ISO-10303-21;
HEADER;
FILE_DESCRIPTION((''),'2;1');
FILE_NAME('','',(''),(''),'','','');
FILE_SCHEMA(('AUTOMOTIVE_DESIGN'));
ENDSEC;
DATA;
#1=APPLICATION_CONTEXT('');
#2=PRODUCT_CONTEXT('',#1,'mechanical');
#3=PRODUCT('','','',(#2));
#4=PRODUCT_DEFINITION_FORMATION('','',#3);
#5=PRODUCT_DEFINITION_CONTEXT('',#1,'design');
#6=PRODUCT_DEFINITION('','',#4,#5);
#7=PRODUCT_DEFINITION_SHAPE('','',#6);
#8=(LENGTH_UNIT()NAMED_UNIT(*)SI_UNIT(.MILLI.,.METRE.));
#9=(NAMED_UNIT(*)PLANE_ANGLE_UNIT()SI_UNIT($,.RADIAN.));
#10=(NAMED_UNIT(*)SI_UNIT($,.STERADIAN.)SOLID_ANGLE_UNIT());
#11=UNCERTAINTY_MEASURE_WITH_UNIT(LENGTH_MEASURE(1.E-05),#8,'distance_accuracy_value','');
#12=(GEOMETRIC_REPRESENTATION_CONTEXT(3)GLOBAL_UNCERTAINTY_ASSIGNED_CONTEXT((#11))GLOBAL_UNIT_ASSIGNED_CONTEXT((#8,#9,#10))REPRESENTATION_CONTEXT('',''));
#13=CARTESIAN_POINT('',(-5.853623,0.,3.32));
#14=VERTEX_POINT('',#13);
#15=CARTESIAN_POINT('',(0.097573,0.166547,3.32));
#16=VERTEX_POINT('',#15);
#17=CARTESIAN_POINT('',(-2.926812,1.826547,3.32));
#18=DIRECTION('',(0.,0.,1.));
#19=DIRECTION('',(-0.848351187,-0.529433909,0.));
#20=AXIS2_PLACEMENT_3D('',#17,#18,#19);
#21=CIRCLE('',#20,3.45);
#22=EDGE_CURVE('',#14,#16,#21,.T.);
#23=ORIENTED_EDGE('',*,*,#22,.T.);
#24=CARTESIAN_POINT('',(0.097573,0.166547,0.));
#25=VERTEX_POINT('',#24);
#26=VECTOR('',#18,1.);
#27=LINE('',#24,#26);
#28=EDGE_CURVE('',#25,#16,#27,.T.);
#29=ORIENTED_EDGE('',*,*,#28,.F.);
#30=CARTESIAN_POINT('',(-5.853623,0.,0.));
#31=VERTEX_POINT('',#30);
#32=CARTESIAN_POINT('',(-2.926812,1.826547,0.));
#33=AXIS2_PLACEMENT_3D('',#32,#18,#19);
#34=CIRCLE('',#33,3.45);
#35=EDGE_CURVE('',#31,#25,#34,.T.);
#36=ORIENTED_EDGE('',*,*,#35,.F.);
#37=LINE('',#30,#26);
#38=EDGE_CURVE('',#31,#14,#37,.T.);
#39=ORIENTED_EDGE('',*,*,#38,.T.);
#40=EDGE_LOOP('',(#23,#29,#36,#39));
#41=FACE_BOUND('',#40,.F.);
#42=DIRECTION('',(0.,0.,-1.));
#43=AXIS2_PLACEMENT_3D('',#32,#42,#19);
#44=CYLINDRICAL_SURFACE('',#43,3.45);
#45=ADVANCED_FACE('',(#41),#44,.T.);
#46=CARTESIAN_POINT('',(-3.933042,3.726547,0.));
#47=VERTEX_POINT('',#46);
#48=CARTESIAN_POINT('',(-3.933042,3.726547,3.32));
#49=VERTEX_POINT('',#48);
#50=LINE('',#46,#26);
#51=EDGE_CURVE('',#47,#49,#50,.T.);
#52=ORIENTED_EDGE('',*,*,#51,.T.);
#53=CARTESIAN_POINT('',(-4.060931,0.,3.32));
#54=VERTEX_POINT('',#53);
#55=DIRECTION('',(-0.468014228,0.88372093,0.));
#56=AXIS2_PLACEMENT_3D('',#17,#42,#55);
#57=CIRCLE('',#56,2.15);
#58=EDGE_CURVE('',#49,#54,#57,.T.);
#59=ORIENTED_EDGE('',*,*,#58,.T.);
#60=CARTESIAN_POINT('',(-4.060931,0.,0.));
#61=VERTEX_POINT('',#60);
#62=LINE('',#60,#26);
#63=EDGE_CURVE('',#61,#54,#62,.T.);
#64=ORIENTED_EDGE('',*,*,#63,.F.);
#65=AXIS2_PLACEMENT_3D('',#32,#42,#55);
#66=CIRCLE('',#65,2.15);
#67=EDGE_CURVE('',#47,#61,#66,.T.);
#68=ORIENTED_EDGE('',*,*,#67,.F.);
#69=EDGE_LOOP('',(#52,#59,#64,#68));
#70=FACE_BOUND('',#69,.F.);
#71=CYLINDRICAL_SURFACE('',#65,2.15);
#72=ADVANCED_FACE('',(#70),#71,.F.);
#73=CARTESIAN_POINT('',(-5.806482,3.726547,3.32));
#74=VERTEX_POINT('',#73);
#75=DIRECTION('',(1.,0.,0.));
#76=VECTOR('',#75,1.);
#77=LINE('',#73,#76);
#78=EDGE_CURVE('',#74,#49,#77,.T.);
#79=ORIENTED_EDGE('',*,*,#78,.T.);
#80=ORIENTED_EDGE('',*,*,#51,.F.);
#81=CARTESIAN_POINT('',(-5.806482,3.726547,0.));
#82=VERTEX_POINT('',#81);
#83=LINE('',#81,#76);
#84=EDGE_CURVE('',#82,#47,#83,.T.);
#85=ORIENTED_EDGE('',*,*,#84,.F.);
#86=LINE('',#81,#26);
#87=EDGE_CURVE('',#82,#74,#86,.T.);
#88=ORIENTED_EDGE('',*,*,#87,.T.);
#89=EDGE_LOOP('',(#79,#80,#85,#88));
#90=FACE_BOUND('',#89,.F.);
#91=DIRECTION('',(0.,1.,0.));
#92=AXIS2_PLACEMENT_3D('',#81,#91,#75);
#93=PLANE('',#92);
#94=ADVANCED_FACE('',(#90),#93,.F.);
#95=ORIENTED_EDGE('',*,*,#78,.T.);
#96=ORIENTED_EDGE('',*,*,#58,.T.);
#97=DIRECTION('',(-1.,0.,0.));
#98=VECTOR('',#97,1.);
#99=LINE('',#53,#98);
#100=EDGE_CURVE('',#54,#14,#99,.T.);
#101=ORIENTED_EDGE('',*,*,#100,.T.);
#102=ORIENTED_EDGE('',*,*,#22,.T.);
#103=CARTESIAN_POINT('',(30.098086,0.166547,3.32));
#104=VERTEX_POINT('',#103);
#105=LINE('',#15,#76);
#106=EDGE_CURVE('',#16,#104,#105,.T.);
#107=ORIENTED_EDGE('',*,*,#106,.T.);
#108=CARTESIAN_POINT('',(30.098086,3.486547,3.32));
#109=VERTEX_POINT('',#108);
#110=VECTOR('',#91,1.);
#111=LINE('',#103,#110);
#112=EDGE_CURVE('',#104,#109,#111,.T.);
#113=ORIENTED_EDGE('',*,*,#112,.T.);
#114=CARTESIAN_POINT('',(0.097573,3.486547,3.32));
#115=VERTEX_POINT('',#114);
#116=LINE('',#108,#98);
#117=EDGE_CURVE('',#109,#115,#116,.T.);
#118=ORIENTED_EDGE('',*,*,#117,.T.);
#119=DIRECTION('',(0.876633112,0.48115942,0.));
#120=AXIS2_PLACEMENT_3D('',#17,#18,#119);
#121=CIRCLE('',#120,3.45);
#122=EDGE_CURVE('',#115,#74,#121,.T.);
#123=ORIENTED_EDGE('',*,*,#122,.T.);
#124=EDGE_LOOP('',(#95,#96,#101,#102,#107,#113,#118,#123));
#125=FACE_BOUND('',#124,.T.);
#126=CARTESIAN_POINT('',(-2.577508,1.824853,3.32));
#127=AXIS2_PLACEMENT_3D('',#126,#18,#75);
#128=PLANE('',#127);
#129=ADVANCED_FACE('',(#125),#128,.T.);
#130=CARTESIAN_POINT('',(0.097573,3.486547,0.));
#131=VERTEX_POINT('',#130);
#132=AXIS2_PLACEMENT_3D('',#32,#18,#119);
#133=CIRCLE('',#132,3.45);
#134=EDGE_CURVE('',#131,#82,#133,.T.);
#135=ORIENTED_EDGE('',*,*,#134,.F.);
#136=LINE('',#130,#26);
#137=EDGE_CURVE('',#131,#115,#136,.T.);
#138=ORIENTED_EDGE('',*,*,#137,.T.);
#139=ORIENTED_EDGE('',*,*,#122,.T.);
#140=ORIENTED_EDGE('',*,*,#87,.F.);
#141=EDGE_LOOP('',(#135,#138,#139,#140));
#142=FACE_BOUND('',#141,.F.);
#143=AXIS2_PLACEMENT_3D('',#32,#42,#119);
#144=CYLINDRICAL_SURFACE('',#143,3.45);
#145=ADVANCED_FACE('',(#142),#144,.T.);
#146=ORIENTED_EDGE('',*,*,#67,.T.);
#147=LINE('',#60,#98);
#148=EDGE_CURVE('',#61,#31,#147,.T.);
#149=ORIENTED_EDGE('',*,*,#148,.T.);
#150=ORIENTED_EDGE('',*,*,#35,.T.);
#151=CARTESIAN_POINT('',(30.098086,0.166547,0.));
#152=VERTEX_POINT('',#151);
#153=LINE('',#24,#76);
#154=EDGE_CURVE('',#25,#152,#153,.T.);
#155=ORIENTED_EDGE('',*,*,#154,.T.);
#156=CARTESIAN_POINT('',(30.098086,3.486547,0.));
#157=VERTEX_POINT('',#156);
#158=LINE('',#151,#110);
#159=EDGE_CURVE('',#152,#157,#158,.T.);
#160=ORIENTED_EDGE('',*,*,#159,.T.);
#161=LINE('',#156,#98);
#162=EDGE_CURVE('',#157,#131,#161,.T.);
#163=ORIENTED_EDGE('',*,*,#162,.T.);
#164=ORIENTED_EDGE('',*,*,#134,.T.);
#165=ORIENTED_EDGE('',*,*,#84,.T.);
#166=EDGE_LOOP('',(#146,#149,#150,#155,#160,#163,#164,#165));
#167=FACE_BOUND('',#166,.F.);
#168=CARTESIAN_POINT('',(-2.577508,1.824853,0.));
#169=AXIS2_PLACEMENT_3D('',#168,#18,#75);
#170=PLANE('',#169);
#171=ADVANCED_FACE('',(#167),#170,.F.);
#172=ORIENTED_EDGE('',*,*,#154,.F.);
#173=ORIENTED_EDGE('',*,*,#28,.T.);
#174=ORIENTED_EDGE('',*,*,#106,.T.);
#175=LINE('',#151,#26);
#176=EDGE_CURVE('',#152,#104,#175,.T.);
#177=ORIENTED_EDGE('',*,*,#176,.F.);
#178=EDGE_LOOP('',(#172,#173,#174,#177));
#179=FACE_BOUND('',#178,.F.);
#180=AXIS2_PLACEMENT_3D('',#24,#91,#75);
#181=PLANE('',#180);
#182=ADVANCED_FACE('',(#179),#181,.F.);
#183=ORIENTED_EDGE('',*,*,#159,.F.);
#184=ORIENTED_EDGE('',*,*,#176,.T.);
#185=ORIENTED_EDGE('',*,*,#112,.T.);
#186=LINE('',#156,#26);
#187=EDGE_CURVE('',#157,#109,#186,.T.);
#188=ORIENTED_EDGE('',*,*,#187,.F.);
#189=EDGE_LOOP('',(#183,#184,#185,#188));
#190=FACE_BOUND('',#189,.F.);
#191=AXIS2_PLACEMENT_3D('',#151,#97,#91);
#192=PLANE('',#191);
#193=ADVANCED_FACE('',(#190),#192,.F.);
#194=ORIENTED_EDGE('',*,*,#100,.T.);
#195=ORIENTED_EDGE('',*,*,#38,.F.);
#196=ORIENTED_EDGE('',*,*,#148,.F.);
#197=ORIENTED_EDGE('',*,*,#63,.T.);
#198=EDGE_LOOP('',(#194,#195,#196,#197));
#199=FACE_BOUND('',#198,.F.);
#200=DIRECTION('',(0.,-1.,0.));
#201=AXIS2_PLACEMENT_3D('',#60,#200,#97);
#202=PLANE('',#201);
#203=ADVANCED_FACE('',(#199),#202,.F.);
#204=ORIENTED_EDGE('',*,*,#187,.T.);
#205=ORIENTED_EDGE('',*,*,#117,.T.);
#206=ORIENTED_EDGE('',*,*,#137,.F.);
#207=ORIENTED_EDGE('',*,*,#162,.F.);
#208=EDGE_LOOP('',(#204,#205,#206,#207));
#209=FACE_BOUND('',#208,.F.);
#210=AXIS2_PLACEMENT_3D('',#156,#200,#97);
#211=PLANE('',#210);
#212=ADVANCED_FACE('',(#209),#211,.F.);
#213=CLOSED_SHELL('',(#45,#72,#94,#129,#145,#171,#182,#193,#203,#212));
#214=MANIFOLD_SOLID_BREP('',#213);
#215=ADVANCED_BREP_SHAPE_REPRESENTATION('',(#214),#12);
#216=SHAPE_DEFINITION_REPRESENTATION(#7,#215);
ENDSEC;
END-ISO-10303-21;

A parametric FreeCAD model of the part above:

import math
import FreeCAD as App
import Part
import Sketcher

V = App.Vector

doc = App.newDocument("Part")
body = doc.addObject("PartDesign::Body", "Body")

sketch1 = body.newObject("Sketcher::SketchObject", "Sketch")
sketch1.AttachmentSupport = (doc.getObject("XY_Plane"), [""])
sketch1.MapMode = "FlatFace"
sketch1.addGeometry([
    Part.LineSegment(V(-4.1, 0, 0), V(-5.9, 0, 0)),
    Part.ArcOfCircle(Part.Circle(V(-2.9, 1.8, 0), V(0, 0, 1), 3.5), math.radians(-148), math.radians(-29)),
    Part.LineSegment(V(0.1, 0.2, 0), V(30.1, 0.2, 0)),
    Part.LineSegment(V(30.1, 0.2, 0), V(30.1, 3.5, 0)),
    Part.LineSegment(V(30.1, 3.5, 0), V(0.1, 3.5, 0)),
    Part.ArcOfCircle(Part.Circle(V(-2.9, 1.8, 0), V(0, 0, 1), 3.5), math.radians(29), math.radians(147)),
    Part.LineSegment(V(-5.8, 3.7, 0), V(-3.9, 3.7, 0)),
    Part.ArcOfCircle(Part.Circle(V(-2.9, 1.8, 0), V(0, 0, 1), 2.1), math.radians(-122), math.radians(118)),
], False)
sketch1.addConstraint([
    Sketcher.Constraint("Coincident", 0, 2, 1, 1),
    Sketcher.Constraint("Coincident", 1, 2, 2, 1),
    Sketcher.Constraint("Coincident", 2, 2, 3, 1),
    Sketcher.Constraint("Coincident", 3, 2, 4, 1),
    Sketcher.Constraint("Coincident", 4, 2, 5, 1),
    Sketcher.Constraint("Coincident", 5, 2, 6, 1),
    Sketcher.Constraint("Coincident", 6, 2, 7, 2),
    Sketcher.Constraint("Coincident", 7, 1, 0, 1),
    Sketcher.Constraint("Horizontal", 0),
    Sketcher.Constraint("Horizontal", 2),
    Sketcher.Constraint("Vertical", 3),
    Sketcher.Constraint("Horizontal", 4),
    Sketcher.Constraint("Horizontal", 6),
    Sketcher.Constraint("Coincident", 5, 3, 1, 3),
    Sketcher.Constraint("Coincident", 7, 3, 1, 3),
    Sketcher.Constraint("Equal", 1, 5),
    Sketcher.Constraint("PointOnObject", 0, 2, -1),
    Sketcher.Constraint("Vertical", 1, 2, 4, 2),
    Sketcher.Constraint("Radius", 1, 3.45),
    Sketcher.Constraint("Radius", 7, 2.15),
    Sketcher.Constraint("DistanceY", 3, 1, 3, 2, 3.32),
    Sketcher.Constraint("DistanceY", 1, 3, 5, 2, 1.9),
    Sketcher.Constraint("DistanceX", 0, 2, 0, 1, 1.792693),
    Sketcher.Constraint("DistanceX", 2, 1, 2, 2, 30.000513),
    Sketcher.Constraint("DistanceX", 1, 3, -1, 1, 2.926812),
])
pad1 = body.newObject("PartDesign::Pad", "Pad")
pad1.Profile = sketch1
pad1.Length = 3.32

doc.recompute()
